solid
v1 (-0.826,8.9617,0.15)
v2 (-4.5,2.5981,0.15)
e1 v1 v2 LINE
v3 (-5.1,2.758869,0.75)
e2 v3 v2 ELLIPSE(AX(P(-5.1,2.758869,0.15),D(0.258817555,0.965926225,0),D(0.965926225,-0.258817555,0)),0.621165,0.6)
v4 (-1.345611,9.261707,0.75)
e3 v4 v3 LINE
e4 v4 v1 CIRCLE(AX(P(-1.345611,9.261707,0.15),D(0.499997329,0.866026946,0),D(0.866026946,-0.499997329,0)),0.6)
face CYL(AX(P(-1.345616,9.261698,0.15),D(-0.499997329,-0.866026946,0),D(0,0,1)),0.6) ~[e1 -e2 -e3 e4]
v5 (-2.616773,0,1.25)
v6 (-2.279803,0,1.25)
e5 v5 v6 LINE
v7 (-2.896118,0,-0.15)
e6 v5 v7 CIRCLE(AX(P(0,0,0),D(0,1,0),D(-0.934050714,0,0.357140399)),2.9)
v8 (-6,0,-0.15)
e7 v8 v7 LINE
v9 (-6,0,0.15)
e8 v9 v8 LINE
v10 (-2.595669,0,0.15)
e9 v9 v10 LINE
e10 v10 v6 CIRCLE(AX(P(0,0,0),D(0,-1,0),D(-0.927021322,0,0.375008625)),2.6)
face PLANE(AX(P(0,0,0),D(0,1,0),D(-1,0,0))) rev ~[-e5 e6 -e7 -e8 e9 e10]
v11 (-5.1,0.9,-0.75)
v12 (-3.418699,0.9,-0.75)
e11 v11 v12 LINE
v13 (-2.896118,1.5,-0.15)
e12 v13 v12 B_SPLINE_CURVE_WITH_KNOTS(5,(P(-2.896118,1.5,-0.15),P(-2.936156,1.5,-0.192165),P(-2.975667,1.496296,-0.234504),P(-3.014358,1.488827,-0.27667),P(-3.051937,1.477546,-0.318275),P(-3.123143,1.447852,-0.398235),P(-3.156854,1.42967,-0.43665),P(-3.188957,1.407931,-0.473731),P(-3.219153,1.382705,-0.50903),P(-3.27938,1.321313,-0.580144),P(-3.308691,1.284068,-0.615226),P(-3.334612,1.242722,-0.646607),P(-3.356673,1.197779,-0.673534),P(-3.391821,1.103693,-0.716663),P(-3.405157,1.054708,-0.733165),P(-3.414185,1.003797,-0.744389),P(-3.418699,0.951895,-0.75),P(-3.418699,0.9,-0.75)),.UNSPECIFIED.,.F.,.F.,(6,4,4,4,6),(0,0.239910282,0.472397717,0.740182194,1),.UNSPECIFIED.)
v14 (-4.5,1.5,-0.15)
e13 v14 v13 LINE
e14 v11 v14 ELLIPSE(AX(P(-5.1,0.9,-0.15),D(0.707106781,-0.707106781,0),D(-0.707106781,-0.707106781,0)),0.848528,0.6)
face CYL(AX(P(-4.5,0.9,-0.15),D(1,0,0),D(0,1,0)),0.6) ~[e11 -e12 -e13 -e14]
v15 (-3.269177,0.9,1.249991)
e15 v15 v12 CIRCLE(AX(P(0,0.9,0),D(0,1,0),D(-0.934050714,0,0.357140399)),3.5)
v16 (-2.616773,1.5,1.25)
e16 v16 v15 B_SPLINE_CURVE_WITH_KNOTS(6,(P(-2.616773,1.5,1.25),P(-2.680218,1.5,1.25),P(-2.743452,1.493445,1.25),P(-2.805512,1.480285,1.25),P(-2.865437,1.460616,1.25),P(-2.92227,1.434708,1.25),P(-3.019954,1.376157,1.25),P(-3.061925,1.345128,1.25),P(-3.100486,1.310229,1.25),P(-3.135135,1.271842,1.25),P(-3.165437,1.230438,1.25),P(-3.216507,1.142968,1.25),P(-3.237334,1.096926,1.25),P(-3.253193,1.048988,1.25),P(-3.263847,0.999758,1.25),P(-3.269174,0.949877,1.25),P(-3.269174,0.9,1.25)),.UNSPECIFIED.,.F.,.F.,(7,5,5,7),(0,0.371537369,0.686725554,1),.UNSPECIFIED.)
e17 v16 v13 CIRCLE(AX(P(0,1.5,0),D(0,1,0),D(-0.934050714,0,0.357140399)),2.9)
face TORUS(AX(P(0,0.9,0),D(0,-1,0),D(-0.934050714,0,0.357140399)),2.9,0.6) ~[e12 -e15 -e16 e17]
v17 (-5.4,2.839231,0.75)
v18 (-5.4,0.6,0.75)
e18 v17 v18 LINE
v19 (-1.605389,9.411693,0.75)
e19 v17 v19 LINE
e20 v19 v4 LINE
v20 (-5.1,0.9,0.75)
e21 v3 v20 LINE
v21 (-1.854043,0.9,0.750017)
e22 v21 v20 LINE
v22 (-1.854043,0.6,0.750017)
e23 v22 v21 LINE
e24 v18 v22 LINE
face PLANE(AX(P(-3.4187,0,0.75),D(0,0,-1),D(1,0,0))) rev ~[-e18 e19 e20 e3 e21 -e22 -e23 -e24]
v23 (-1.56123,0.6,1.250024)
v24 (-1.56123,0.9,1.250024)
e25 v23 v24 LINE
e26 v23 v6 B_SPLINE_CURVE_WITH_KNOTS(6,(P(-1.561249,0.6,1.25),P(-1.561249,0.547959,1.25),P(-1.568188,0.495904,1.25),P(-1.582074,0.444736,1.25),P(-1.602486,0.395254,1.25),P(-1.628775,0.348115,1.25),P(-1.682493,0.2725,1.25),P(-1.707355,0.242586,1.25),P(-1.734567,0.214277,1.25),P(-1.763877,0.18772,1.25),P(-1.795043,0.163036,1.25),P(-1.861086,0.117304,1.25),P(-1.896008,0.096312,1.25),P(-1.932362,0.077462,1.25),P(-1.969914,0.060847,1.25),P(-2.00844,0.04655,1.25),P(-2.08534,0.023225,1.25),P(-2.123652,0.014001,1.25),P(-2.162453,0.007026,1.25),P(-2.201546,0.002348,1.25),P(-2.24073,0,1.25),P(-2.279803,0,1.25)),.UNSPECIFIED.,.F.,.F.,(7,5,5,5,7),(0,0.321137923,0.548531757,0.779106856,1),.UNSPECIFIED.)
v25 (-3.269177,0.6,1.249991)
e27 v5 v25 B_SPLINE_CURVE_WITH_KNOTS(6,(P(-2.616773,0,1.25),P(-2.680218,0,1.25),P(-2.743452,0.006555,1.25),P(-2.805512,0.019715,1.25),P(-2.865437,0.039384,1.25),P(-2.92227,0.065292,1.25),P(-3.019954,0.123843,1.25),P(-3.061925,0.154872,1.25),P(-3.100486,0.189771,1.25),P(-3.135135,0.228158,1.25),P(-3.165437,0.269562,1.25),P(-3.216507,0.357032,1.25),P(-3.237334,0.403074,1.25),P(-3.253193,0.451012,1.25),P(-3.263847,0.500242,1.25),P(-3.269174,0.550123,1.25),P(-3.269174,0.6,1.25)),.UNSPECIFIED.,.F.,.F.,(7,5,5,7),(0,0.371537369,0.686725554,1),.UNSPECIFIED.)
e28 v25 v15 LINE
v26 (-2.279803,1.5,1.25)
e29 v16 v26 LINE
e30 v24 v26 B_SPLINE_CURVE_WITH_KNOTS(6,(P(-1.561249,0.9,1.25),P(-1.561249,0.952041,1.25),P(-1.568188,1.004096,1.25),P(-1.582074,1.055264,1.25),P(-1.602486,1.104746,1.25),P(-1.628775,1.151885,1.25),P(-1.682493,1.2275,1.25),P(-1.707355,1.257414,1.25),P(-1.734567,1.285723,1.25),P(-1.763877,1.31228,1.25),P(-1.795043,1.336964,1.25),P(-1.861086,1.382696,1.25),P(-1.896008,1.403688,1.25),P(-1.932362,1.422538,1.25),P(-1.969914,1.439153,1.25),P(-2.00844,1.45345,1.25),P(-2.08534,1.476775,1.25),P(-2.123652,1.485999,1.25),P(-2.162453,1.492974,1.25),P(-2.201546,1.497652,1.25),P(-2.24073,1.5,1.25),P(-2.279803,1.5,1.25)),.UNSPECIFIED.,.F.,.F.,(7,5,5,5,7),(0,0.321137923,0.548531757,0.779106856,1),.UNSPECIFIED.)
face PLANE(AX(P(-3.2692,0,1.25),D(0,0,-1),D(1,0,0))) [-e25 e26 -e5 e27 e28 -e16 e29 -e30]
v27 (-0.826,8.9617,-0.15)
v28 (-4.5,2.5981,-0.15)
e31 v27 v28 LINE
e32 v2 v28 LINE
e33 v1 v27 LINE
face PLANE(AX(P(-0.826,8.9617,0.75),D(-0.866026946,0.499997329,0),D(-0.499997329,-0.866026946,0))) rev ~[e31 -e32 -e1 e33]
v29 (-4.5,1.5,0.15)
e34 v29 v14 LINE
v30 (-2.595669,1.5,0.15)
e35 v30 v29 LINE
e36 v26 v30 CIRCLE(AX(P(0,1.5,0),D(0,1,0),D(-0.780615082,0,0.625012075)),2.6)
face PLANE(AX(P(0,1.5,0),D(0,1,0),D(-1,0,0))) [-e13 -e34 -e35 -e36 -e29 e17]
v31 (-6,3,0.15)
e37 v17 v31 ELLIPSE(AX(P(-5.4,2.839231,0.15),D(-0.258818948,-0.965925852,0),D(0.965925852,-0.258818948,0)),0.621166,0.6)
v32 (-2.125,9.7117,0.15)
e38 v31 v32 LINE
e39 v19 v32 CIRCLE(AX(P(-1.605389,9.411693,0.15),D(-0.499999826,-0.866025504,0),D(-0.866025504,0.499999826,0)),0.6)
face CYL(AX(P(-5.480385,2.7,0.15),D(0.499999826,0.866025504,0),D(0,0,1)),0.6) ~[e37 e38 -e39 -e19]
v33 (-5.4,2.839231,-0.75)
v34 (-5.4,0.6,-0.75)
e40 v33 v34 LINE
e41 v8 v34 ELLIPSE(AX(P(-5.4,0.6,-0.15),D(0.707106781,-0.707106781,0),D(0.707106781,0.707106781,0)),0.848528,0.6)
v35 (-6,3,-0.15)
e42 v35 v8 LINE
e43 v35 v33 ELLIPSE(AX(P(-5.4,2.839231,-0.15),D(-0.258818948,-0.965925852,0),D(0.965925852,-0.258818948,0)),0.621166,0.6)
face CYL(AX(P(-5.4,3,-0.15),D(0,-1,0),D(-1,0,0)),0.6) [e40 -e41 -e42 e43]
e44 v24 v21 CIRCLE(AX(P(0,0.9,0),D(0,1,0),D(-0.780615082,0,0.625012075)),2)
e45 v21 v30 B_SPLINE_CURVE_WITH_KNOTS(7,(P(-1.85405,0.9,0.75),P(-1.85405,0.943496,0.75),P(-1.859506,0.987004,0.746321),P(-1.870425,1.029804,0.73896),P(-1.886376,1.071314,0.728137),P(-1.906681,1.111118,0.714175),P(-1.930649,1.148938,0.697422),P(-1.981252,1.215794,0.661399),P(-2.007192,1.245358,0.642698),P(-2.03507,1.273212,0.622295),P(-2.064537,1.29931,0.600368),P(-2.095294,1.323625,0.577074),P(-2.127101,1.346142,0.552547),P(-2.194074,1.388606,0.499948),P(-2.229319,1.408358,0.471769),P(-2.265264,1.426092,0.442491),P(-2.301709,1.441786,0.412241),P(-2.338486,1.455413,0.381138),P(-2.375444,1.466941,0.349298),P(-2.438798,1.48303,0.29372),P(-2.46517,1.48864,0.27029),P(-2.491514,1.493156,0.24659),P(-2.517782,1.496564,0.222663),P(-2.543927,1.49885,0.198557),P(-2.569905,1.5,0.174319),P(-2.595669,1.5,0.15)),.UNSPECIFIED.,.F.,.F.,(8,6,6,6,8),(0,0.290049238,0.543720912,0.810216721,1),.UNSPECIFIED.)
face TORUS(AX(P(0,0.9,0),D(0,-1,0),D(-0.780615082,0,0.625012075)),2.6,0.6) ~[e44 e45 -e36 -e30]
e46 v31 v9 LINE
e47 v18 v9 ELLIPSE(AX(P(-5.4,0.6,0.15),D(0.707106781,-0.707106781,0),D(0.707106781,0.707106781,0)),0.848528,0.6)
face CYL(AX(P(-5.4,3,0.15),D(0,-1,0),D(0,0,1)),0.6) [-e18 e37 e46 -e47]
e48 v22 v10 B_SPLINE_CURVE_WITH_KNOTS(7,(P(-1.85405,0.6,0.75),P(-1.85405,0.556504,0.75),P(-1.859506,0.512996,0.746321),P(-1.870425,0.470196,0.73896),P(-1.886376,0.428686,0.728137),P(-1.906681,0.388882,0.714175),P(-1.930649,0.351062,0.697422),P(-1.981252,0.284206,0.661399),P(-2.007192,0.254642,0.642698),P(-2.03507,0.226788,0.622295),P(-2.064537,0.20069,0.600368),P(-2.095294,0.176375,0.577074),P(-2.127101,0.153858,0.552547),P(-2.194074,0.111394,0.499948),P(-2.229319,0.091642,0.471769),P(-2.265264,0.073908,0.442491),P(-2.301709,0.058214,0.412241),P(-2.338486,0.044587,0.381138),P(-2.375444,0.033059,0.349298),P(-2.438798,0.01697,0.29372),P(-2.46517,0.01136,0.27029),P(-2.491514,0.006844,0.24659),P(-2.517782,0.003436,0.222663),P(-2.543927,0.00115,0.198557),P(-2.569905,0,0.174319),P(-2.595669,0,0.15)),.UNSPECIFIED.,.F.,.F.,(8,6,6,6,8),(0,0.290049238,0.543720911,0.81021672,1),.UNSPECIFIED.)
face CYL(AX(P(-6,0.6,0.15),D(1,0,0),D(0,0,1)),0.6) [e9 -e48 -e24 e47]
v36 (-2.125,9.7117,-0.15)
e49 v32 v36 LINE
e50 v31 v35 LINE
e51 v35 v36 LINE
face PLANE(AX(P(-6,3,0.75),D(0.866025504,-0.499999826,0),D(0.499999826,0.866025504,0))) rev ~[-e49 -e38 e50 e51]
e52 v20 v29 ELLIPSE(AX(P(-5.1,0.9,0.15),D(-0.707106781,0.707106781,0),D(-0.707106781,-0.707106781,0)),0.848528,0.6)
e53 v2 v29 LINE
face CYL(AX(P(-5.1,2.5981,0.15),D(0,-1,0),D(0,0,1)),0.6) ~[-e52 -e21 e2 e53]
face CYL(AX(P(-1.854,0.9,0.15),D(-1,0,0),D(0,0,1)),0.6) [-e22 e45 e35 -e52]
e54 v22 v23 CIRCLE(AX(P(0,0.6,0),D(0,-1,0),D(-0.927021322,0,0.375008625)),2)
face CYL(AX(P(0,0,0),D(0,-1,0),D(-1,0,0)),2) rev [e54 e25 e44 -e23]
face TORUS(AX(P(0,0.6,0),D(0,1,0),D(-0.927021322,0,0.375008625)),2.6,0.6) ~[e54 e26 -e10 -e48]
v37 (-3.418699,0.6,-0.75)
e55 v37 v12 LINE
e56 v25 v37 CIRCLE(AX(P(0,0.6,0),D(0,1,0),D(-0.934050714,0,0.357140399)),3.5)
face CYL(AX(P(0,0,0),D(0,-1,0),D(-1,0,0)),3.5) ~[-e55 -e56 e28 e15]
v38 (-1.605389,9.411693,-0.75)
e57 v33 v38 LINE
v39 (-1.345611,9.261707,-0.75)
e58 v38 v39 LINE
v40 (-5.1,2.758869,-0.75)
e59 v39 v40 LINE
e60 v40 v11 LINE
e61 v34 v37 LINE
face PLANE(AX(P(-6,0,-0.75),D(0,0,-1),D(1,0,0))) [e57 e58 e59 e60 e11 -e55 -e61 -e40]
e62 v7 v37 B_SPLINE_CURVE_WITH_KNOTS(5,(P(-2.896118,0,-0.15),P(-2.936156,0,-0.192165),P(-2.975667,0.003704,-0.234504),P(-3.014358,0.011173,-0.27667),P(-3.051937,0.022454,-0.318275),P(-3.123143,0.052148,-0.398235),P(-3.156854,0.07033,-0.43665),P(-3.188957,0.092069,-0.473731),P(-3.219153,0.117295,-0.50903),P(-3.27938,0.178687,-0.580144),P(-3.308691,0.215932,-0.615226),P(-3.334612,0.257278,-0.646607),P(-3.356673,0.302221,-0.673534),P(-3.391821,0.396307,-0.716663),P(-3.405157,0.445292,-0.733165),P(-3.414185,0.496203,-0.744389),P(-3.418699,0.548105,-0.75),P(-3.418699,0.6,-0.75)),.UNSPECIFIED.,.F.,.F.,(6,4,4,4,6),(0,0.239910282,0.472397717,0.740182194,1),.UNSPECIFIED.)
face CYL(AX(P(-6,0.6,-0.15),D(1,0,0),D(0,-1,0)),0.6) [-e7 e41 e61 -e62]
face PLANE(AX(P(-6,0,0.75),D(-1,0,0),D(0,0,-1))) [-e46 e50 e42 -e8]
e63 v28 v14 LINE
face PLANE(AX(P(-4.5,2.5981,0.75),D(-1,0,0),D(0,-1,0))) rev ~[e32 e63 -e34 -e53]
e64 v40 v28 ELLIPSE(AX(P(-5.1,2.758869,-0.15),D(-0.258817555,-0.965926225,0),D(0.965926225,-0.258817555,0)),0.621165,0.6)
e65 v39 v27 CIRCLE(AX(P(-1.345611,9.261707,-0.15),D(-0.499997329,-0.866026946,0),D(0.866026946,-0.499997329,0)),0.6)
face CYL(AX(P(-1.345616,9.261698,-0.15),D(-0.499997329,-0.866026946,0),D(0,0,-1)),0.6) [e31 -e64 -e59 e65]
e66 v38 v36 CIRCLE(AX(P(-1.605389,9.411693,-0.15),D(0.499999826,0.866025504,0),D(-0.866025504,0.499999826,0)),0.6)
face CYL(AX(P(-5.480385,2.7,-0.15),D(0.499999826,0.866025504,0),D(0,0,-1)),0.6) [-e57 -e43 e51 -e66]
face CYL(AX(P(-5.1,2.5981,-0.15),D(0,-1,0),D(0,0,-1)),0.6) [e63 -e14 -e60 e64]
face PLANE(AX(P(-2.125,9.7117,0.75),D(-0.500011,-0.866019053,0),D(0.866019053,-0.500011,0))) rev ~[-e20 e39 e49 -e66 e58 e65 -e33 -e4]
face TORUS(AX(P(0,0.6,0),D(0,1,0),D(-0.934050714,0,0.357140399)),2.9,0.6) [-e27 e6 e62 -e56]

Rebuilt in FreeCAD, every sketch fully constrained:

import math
import FreeCAD as App
import Part
import Sketcher
Q = App.Units.Quantity


def edges_at(feature, points):
    """Names of the edges that pass closest to the given points."""
    edges = feature.Shape.Edges
    near = lambda p: min(range(len(edges)), key=lambda i: edges[i].distToShape(Part.Vertex(*p))[0])
    return sorted({f"Edge{near(p) + 1}" for p in points})


def add_polygon(sketch, points):
    """Adds a closed chain of lines whose ends are joined by coincident constraints."""
    first, n = sketch.GeometryCount, len(points)
    for a, b in zip(points, points[1:] + points[:1]):
        sketch.addGeometry(Part.LineSegment(App.Vector(*a, 0), App.Vector(*b, 0)), False)
    for i in range(n):
        sketch.addConstraint(Sketcher.Constraint("Coincident", first + i, 2, first + (i + 1) % n, 1))

doc = App.newDocument("Part")
params = doc.addObject("Spreadsheet::Sheet", "Params")
for row, (alias, value) in enumerate([
    ("sketch1_radius", "2 mm"),
    ("sketch1_height", "1.5 mm"),
    ("sketch1_radius2", "3.5 mm"),
    ("pad1_length", "1.5 mm"),
    ("sketch2_width", "1.5 mm"),
    ("sketch2_length", "1.5 mm"),
    ("sketch2_length2", "7.75 mm"),
    ("pad2_length", "1.5 mm"),
    ("fillet_radius", "0.6 mm"),
], start=1):
    params.set(f"A{row}", alias)
    params.set(f"B{row}", "=" + value)
    params.setAlias(f"B{row}", alias)

body = doc.addObject("PartDesign::Body", "Body")

# Sketch on XZ plane
sketch1 = body.newObject("Sketcher::SketchObject", "Sketch")
sketch1.AttachmentSupport = (doc.getObject("XZ_Plane"), [""])
sketch1.MapMode = "FlatFace"
sketch1.addGeometry([
    Part.ArcOfCircle(Part.Circle(App.Vector(0, 0, 0), App.Vector(0, 0, 1), 2), math.radians(158), math.radians(501)),  # 0
    Part.LineSegment(App.Vector(-1.6, 1.2, 0), App.Vector(-3.3, 1.2, 0)),  # 1
    Part.ArcOfCircle(Part.Circle(App.Vector(0, 0, 0), App.Vector(0, 0, 1), 3.5), math.radians(-168), math.radians(159)),  # 2
    Part.LineSegment(App.Vector(-3.4, -0.8, 0), App.Vector(-6, -0.8, 0)),  # 3
    Part.LineSegment(App.Vector(-6, -0.8, 0), App.Vector(-6, 0.8, 0)),  # 4
    Part.LineSegment(App.Vector(-6, 0.8, 0), App.Vector(-1.9, 0.8, 0)),  # 5
], False)
sketch1.addConstraint([
    Sketcher.Constraint("Coincident", 0, 2, 1, 1),
    Sketcher.Constraint("Coincident", 1, 2, 2, 2),
    Sketcher.Constraint("Coincident", 2, 1, 3, 1),
    Sketcher.Constraint("Coincident", 3, 2, 4, 1),
    Sketcher.Constraint("Coincident", 4, 2, 5, 1),
    Sketcher.Constraint("Coincident", 5, 2, 0, 1),
    Sketcher.Constraint("Horizontal", 1),
    Sketcher.Constraint("Horizontal", 3),
    Sketcher.Constraint("Vertical", 4),
    Sketcher.Constraint("Horizontal", 5),
    Sketcher.Constraint("Coincident", 0, 3, -1, 1),
    Sketcher.Constraint("Coincident", 2, 3, -1, 1),
    Sketcher.Constraint("Radius", 0, 2.0),
    Sketcher.Constraint("DistanceY", 4, 1, 4, 2, 1.5),
    Sketcher.Constraint("DistanceX", 3, 2, -1, 1, 6.0),
    Sketcher.Constraint("Radius", 2, 3.5),
    Sketcher.Constraint("DistanceY", 4, 2, 1, 2, 0.5),
    Sketcher.Constraint("DistanceY", 2, 1, -1, 1, 0.75),
])
sketch1.setExpression("Constraints[12]", "Params.sketch1_radius")
sketch1.setExpression("Constraints[13]", "Params.sketch1_height")
sketch1.setExpression("Constraints[15]", "Params.sketch1_radius2")
pad1 = body.newObject("PartDesign::Pad", "Pad")
pad1.Profile = sketch1
pad1.setExpression("Length", "Params.pad1_length")
pad1.Reversed = True

# Sketch on XY plane
sketch2 = body.newObject("Sketcher::SketchObject", "Sketch001")
sketch2.AttachmentSupport = (doc.getObject("XY_Plane"), [""])
sketch2.MapMode = "FlatFace"
sketch2.AttachmentOffset = App.Placement(App.Vector(0, 0, 0.75), App.Rotation())
add_polygon(sketch2, [(-6, 3), (-6, 1.5), (-4.5, 1.5), (-4.5, 2.6), (-0.8, 9), (-2.1, 9.7)])  # lines 0-5
sketch2.addConstraint([
    Sketcher.Constraint("Vertical", 0),
    Sketcher.Constraint("Horizontal", 1),
    Sketcher.Constraint("Vertical", 2),
    Sketcher.Constraint("Perpendicular", 3, 4),
    Sketcher.Constraint("Perpendicular", 4, 5),
    Sketcher.Constraint("Equal", 1, 0),
    Sketcher.Constraint("Angle", 3, Q("60.0002 deg")),
    Sketcher.Constraint("DistanceX", 1, 1, 1, 2, 1.5),
    Sketcher.Constraint("Distance", 4, 1.5),
    Sketcher.Constraint("DistanceY", -1, 1, 0, 2, 1.5),
    Sketcher.Constraint("DistanceX", 0, 2, -1, 1, 6.0),
    Sketcher.Constraint("Distance", 5, 7.75),
])
sketch2.setExpression("Constraints[13]", "Params.sketch2_width")
sketch2.setExpression("Constraints[14]", "Params.sketch2_length")
sketch2.setExpression("Constraints[17]", "Params.sketch2_length2")
pad2 = body.newObject("PartDesign::Pad", "Pad001")
pad2.Profile = sketch2
pad2.setExpression("Length", "Params.pad2_length")
pad2.Reversed = True
doc.recompute()

fillet = body.newObject("PartDesign::Fillet", "Fillet")
fillet.Base = (pad2, edges_at(pad2, [
    (3.49, 1.5, -0.261),
    (1.726, 1.5, -1.011),
    (1.726, 0, -1.011),
    (3.49, 0, -0.261),
    (-3.927, 0, 0.75),
    (-4.709, 0, -0.75),
    (-3.177, 1.5, 0.75),
    (-6, 1.5, 0.75),
    (-6, 1.5, -0.75),
    (-4.062, 6.356, 0.75),
    (-4.062, 6.356, -0.75),
    (-4.5, 2.049, 0.75),
    (-4.5, 2.049, -0.75),
    (-2.663, 5.78, 0.75),
    (-2.663, 5.78, -0.75),
    (-3.959, 1.5, -0.75),
]))
fillet.setExpression("Radius", "Params.fillet_radius")

doc.recompute()
